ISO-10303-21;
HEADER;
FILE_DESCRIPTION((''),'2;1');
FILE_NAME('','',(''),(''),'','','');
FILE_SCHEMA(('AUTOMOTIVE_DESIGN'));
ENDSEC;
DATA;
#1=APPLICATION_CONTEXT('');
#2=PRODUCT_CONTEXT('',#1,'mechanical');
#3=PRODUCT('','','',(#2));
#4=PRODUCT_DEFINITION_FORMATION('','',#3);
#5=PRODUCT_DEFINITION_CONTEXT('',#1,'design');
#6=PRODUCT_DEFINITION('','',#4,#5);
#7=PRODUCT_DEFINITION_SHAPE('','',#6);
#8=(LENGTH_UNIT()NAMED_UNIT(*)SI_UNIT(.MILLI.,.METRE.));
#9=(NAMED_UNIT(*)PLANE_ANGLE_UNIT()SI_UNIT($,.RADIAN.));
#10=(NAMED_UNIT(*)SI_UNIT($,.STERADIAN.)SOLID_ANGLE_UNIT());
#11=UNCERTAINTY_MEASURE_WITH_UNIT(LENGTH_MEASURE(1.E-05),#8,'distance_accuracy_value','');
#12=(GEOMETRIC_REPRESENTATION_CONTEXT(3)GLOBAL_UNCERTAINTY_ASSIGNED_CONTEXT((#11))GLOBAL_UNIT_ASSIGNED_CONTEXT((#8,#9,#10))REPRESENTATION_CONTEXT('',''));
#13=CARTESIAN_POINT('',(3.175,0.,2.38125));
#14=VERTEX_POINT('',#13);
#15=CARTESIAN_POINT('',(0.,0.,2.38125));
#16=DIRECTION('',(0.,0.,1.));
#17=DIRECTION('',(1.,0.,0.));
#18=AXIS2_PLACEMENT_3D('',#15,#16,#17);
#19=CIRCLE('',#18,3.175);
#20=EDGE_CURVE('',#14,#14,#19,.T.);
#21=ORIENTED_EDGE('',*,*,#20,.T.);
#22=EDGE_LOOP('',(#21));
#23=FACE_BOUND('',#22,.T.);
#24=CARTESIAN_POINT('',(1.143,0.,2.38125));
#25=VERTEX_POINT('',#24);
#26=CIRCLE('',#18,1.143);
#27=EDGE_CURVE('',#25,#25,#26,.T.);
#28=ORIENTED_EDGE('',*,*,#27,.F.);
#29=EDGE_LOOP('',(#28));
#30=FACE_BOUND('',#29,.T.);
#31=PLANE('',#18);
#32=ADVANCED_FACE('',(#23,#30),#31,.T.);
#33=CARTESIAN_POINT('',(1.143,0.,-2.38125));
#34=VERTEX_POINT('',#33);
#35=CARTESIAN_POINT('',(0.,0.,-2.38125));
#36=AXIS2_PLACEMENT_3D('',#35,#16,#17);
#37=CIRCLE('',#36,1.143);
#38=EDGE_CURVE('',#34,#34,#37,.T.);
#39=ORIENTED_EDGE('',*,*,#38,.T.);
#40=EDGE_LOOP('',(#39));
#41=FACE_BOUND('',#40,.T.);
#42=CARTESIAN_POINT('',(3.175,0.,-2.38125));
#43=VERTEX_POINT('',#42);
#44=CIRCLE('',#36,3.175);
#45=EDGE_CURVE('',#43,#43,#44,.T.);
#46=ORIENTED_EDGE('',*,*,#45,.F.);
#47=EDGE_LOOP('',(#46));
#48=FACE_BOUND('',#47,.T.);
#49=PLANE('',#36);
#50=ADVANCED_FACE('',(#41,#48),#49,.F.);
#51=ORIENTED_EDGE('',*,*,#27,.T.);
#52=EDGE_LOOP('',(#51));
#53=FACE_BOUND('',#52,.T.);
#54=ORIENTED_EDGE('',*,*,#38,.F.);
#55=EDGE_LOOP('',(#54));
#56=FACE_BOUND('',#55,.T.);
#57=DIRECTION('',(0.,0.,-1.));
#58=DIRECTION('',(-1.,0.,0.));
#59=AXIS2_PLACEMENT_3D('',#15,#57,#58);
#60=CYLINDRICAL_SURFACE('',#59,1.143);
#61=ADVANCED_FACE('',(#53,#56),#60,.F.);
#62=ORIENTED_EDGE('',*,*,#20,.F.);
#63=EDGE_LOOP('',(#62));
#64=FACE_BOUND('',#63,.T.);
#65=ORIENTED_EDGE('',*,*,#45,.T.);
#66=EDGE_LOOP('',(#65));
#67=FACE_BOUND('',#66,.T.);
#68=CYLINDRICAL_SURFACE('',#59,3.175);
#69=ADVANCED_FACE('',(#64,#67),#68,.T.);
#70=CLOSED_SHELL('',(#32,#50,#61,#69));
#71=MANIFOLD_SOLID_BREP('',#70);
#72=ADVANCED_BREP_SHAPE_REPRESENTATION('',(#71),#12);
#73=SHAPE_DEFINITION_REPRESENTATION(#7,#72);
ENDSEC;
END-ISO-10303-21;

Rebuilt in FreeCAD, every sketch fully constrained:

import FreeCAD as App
import Part
import Sketcher

V = App.Vector
Q = App.Units.Quantity

doc = App.newDocument("Part")
body = doc.addObject("PartDesign::Body", "Body")

# Sketch on XY plane
sketch1 = doc.addObject("Sketcher::SketchObject", "Sketch")
body.addObject(sketch1)
sketch1.AttachmentSupport = (doc.XY_Plane, [""])
sketch1.MapMode = "FlatFace"
sketch1.addGeometry([
    Part.Circle(V(0, 0, 0), V(0, 0, 1), 3.2),
    Part.Circle(V(0, 0, 0), V(0, 0, 1), 1.1),
], False)
sketch1.addConstraint([
    Sketcher.Constraint("Coincident", 0, 3, -1, 1),
    Sketcher.Constraint("Coincident", 1, 3, -1, 1),
    Sketcher.Constraint("Diameter", 0, Q("0.25 in")),
    Sketcher.Constraint("Diameter", 1, Q("0.09 in")),
])
pad1 = doc.addObject("PartDesign::Pad", "Pad")
body.addObject(pad1)
pad1.Profile = sketch1
pad1.Type = "TwoLengths"
pad1.Length = Q("0.09375 in")
pad1.Length2 = Q("0.09375 in")

doc.recompute()
